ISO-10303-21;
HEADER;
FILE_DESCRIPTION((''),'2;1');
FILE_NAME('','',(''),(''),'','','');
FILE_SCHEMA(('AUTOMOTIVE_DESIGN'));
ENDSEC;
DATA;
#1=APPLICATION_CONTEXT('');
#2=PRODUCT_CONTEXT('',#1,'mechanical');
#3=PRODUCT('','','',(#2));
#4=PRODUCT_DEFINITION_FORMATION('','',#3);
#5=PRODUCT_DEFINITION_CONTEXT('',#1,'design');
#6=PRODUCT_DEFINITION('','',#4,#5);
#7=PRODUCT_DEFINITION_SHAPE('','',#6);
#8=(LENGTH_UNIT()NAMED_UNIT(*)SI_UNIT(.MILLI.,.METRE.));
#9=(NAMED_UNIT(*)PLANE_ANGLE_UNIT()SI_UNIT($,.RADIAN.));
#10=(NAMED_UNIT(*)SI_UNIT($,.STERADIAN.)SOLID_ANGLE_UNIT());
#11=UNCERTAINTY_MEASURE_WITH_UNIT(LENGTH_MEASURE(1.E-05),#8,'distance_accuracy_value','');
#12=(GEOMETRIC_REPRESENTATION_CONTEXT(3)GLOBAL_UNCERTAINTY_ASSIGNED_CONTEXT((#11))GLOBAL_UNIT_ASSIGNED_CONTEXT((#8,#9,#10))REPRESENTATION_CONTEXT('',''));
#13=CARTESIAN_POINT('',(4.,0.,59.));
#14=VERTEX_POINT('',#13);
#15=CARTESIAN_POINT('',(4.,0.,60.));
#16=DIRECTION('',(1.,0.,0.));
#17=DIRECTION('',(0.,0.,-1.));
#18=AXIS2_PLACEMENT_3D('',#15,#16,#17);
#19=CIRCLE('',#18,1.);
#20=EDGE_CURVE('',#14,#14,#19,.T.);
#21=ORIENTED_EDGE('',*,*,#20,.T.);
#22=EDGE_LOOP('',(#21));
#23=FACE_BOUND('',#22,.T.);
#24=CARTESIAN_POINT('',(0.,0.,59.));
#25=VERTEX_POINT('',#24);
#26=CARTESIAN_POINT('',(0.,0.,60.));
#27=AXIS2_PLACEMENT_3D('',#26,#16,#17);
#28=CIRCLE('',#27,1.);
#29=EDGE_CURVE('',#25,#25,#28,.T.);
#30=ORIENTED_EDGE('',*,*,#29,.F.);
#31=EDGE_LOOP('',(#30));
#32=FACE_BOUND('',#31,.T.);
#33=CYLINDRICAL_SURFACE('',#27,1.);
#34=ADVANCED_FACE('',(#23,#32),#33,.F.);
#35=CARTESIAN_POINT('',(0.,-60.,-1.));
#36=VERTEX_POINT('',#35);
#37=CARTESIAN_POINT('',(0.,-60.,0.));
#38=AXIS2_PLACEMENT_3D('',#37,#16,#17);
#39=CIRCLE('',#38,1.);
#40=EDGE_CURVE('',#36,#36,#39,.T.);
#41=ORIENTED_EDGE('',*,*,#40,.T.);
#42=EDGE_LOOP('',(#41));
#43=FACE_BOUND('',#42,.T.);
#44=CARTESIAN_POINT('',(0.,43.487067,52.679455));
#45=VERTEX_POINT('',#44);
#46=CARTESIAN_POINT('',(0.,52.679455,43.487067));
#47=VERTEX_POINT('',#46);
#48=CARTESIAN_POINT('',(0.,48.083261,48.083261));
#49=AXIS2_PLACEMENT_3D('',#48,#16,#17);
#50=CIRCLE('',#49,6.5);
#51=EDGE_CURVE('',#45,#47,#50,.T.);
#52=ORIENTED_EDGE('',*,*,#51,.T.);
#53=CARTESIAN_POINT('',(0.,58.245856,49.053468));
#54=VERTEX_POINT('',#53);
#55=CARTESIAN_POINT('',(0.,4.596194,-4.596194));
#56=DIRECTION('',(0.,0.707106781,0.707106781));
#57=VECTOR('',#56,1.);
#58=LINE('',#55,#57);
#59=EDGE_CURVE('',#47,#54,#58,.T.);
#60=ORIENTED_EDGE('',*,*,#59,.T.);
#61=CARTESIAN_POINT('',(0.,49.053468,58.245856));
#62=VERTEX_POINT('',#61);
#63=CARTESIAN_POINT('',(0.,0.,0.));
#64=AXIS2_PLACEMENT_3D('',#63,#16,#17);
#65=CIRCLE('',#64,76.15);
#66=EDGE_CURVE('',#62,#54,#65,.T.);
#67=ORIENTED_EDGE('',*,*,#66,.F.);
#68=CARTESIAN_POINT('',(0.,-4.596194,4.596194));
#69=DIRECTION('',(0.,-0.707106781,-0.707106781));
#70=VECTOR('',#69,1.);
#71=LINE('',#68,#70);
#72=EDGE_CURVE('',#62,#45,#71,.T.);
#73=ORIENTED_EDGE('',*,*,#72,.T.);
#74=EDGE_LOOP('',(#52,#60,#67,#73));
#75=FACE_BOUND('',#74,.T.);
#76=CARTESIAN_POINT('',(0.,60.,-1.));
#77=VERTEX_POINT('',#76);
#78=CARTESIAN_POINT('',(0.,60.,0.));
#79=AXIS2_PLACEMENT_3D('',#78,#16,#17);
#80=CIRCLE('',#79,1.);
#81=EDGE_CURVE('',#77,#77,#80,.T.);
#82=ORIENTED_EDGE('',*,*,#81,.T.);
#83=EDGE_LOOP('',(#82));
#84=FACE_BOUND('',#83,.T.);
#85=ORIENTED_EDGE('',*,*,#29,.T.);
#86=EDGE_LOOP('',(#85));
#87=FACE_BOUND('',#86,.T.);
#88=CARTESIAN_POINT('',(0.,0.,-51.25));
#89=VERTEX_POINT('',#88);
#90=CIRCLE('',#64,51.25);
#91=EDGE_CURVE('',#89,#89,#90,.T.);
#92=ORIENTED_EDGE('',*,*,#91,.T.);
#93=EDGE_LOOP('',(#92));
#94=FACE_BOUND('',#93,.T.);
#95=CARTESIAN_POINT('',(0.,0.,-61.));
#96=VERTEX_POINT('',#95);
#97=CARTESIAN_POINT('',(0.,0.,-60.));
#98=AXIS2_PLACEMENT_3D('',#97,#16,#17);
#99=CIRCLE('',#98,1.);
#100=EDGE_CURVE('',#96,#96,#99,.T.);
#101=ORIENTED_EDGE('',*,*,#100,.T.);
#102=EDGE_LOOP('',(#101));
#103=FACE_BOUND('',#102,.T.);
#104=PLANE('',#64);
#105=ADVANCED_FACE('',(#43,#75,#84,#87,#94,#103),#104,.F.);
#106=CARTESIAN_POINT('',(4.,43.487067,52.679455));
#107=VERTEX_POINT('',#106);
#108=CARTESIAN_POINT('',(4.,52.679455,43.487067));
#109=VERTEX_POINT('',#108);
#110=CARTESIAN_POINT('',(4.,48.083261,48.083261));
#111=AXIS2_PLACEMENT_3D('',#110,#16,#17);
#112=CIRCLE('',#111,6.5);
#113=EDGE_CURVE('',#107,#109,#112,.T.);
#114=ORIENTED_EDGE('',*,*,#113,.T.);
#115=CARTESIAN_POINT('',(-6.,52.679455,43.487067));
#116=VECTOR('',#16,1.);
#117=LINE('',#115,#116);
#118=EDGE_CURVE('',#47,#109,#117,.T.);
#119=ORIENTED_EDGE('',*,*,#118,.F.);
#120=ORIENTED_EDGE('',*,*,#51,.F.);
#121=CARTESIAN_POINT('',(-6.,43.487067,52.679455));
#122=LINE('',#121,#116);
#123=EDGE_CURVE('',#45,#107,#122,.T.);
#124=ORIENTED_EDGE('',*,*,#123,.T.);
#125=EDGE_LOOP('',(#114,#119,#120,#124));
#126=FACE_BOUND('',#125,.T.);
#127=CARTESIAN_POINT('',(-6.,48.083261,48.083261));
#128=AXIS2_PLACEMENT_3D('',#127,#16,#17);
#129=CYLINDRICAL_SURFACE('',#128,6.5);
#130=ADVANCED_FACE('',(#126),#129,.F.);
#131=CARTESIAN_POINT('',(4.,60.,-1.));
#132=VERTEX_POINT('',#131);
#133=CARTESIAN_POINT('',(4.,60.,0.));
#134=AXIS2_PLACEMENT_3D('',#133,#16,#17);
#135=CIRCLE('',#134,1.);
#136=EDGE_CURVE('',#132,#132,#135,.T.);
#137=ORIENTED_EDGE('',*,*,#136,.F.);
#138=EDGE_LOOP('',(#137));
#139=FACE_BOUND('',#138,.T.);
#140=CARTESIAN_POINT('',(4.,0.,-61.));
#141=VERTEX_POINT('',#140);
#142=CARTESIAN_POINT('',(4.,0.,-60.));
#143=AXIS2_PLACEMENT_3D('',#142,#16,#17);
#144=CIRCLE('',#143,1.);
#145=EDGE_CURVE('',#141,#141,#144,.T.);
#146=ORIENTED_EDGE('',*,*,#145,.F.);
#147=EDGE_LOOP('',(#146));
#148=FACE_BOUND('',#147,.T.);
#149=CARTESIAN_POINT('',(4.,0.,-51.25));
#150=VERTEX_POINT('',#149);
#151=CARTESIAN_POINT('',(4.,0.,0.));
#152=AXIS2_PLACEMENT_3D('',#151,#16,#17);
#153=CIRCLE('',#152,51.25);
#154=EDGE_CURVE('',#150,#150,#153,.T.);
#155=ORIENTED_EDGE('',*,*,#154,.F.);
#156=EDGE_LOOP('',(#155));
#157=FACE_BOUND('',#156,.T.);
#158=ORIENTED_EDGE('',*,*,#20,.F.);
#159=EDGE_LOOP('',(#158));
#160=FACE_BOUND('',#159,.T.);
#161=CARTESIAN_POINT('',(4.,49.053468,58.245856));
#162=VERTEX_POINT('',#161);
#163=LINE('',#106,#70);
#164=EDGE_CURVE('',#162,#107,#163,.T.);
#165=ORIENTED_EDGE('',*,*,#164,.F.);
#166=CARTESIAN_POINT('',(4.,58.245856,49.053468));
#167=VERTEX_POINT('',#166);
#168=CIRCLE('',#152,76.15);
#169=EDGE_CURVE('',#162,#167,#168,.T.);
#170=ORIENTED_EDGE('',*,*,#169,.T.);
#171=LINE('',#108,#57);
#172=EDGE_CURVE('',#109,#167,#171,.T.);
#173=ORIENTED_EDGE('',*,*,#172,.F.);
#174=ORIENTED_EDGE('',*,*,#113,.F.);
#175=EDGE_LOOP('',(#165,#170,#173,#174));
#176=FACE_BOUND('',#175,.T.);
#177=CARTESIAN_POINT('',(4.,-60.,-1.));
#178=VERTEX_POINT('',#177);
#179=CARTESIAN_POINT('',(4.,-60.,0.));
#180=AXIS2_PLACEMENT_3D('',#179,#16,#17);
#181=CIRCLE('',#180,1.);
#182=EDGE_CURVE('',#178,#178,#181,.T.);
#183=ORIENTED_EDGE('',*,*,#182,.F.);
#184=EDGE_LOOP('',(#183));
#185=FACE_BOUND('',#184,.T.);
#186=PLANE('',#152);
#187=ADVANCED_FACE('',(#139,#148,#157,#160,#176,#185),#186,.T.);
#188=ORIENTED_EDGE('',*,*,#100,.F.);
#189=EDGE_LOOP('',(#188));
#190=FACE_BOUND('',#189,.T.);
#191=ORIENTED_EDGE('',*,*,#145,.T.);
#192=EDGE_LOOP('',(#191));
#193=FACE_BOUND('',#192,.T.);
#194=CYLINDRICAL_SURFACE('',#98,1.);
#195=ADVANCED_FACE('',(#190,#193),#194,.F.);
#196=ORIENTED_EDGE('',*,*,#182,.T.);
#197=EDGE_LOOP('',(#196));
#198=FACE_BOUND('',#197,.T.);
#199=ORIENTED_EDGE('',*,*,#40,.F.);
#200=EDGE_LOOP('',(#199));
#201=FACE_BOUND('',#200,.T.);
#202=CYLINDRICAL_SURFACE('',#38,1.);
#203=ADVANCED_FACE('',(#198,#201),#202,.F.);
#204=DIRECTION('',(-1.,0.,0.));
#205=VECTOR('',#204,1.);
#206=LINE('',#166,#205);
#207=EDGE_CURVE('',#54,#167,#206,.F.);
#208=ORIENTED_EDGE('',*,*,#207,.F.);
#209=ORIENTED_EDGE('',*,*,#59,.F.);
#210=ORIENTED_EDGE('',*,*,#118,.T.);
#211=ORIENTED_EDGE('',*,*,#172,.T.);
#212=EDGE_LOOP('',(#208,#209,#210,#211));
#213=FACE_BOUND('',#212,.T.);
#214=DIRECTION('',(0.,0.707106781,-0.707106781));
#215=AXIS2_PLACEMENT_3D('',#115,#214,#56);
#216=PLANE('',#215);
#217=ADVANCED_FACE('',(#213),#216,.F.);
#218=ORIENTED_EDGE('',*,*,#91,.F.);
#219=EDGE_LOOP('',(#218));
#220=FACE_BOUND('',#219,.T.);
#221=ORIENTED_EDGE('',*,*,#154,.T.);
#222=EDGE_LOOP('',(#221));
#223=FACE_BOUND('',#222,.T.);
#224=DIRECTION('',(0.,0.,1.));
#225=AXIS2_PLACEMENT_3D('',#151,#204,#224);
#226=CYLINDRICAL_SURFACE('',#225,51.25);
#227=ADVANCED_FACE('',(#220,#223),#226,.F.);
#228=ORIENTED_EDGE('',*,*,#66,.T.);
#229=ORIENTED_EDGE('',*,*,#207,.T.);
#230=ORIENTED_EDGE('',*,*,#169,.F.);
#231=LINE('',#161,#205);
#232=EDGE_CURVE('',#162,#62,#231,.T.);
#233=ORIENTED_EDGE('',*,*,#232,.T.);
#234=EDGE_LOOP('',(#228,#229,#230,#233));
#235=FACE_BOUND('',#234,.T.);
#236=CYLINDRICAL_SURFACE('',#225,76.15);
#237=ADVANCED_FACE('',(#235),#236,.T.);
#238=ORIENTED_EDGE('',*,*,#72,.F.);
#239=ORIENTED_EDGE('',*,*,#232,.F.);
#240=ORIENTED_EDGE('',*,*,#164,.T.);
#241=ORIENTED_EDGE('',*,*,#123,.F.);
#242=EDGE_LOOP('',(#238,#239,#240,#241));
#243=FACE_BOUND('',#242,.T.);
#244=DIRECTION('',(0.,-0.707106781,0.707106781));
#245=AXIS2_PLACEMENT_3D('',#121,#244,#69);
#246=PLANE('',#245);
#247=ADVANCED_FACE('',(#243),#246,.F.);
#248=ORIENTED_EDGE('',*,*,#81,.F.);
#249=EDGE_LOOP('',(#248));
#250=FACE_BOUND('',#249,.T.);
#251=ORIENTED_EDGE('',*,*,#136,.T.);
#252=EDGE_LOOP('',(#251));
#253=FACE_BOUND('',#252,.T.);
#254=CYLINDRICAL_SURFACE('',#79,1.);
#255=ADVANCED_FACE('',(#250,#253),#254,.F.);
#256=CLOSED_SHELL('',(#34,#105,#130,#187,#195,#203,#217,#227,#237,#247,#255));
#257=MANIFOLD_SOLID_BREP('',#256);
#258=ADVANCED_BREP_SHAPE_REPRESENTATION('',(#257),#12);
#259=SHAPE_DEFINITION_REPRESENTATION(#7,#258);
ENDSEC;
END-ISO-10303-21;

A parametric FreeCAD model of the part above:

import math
import FreeCAD as App
import Part
import Sketcher
Q = App.Units.Quantity

doc = App.newDocument("Part")
body = doc.addObject("PartDesign::Body", "Body")

# Sketch on YZ plane
sketch1 = body.newObject("Sketcher::SketchObject", "Sketch")
sketch1.AttachmentSupport = (doc.getObject("YZ_Plane"), [""])
sketch1.MapMode = "FlatFace"
sketch1.addGeometry([
    Part.Circle(App.Vector(0, 0, 0), App.Vector(0, 0, 1), 76),
    Part.Circle(App.Vector(0, 0, 0), App.Vector(0, 0, 1), 51),
], False)
sketch1.addConstraint([
    Sketcher.Constraint("Coincident", 0, 3, -1, 1),
    Sketcher.Constraint("Coincident", 1, 3, -1, 1),
    Sketcher.Constraint("Diameter", 0, Q("152.3 mm")),
    Sketcher.Constraint("Diameter", 1, Q("102.5 mm")),
])
pad1 = body.newObject("PartDesign::Pad", "Pad")
pad1.Profile = sketch1
pad1.Length = 4

# Sketch on YZ plane
sketch2 = body.newObject("Sketcher::SketchObject", "Sketch001")
sketch2.AttachmentSupport = (doc.getObject("YZ_Plane"), [""])
sketch2.MapMode = "FlatFace"
sketch2.AttachmentOffset = App.Placement(App.Vector(0, 0, 4), App.Rotation())
sketch2.addGeometry([
    Part.Circle(App.Vector(60, 0, 0), App.Vector(0, 0, 1), 1),
    Part.Circle(App.Vector(0, -60, 0), App.Vector(0, 0, 1), 1),
    Part.Circle(App.Vector(-60, 0, 0), App.Vector(0, 0, 1), 1),
    Part.Circle(App.Vector(0, 60, 0), App.Vector(0, 0, 1), 1),
], False)
sketch2.addConstraint([
    Sketcher.Constraint("Equal", 0, 1),
    Sketcher.Constraint("Equal", 1, 2),
    Sketcher.Constraint("Equal", 2, 3),
    Sketcher.Constraint("Symmetric", 0, 3, 2, 3, -1, 1),
    Sketcher.Constraint("Symmetric", 1, 3, 3, 3, -1, 1),
    Sketcher.Constraint("PointOnObject", 0, 3, -1),
    Sketcher.Constraint("PointOnObject", 1, 3, -2),
    Sketcher.Constraint("Diameter", 0, Q("2 mm")),
    Sketcher.Constraint("DistanceX", -1, 1, 0, 3, Q("60 mm")),
    Sketcher.Constraint("DistanceY", 1, 3, -1, 1, Q("60 mm")),
])
pocket1 = body.newObject("PartDesign::Pocket", "Pocket")
pocket1.Profile = sketch2
pocket1.Type = "ThroughAll"

# Sketch on YZ plane
sketch3 = body.newObject("Sketcher::SketchObject", "Sketch002")
sketch3.AttachmentSupport = (doc.getObject("YZ_Plane"), [""])
sketch3.MapMode = "FlatFace"
sketch3.AttachmentOffset = App.Placement(App.Vector(0, 0, 4), App.Rotation())
sketch3.addGeometry([
    Part.LineSegment(App.Vector(53, 43, 0), App.Vector(91, 82, 0)),
    Part.LineSegment(App.Vector(91, 82, 0), App.Vector(83, 92, 0)),
    Part.LineSegment(App.Vector(83, 92, 0), App.Vector(43, 53, 0)),
    Part.ArcOfCircle(Part.Circle(App.Vector(48, 48, 0), App.Vector(0, 0, 1), 6), math.radians(135), math.radians(315)),
], False)
sketch3.addConstraint([
    Sketcher.Constraint("Coincident", 0, 2, 1, 1),
    Sketcher.Constraint("Coincident", 1, 2, 2, 1),
    Sketcher.Constraint("Tangent", 2, 2, 3, 1),
    Sketcher.Constraint("Tangent", 3, 2, 0, 1),
    Sketcher.Constraint("Parallel", 0, 2),
    Sketcher.Constraint("Radius", 3, Q("6.5 mm")),
    Sketcher.Constraint("Angle", 0, Q("45 deg")),
    Sketcher.Constraint("DistanceY", 3, 2, 1, 2, Q("48.7869 mm")),
    Sketcher.Constraint("Distance", 1, Q("13.16769 mm")),
    Sketcher.Constraint("DistanceX", -1, 1, 3, 3, Q("48.083261 mm")),
    Sketcher.Constraint("DistanceY", -1, 1, 3, 3, Q("48.083261 mm")),
])
pocket2 = body.newObject("PartDesign::Pocket", "Pocket001")
pocket2.Profile = sketch3
pocket2.Length = 10

doc.recompute()
